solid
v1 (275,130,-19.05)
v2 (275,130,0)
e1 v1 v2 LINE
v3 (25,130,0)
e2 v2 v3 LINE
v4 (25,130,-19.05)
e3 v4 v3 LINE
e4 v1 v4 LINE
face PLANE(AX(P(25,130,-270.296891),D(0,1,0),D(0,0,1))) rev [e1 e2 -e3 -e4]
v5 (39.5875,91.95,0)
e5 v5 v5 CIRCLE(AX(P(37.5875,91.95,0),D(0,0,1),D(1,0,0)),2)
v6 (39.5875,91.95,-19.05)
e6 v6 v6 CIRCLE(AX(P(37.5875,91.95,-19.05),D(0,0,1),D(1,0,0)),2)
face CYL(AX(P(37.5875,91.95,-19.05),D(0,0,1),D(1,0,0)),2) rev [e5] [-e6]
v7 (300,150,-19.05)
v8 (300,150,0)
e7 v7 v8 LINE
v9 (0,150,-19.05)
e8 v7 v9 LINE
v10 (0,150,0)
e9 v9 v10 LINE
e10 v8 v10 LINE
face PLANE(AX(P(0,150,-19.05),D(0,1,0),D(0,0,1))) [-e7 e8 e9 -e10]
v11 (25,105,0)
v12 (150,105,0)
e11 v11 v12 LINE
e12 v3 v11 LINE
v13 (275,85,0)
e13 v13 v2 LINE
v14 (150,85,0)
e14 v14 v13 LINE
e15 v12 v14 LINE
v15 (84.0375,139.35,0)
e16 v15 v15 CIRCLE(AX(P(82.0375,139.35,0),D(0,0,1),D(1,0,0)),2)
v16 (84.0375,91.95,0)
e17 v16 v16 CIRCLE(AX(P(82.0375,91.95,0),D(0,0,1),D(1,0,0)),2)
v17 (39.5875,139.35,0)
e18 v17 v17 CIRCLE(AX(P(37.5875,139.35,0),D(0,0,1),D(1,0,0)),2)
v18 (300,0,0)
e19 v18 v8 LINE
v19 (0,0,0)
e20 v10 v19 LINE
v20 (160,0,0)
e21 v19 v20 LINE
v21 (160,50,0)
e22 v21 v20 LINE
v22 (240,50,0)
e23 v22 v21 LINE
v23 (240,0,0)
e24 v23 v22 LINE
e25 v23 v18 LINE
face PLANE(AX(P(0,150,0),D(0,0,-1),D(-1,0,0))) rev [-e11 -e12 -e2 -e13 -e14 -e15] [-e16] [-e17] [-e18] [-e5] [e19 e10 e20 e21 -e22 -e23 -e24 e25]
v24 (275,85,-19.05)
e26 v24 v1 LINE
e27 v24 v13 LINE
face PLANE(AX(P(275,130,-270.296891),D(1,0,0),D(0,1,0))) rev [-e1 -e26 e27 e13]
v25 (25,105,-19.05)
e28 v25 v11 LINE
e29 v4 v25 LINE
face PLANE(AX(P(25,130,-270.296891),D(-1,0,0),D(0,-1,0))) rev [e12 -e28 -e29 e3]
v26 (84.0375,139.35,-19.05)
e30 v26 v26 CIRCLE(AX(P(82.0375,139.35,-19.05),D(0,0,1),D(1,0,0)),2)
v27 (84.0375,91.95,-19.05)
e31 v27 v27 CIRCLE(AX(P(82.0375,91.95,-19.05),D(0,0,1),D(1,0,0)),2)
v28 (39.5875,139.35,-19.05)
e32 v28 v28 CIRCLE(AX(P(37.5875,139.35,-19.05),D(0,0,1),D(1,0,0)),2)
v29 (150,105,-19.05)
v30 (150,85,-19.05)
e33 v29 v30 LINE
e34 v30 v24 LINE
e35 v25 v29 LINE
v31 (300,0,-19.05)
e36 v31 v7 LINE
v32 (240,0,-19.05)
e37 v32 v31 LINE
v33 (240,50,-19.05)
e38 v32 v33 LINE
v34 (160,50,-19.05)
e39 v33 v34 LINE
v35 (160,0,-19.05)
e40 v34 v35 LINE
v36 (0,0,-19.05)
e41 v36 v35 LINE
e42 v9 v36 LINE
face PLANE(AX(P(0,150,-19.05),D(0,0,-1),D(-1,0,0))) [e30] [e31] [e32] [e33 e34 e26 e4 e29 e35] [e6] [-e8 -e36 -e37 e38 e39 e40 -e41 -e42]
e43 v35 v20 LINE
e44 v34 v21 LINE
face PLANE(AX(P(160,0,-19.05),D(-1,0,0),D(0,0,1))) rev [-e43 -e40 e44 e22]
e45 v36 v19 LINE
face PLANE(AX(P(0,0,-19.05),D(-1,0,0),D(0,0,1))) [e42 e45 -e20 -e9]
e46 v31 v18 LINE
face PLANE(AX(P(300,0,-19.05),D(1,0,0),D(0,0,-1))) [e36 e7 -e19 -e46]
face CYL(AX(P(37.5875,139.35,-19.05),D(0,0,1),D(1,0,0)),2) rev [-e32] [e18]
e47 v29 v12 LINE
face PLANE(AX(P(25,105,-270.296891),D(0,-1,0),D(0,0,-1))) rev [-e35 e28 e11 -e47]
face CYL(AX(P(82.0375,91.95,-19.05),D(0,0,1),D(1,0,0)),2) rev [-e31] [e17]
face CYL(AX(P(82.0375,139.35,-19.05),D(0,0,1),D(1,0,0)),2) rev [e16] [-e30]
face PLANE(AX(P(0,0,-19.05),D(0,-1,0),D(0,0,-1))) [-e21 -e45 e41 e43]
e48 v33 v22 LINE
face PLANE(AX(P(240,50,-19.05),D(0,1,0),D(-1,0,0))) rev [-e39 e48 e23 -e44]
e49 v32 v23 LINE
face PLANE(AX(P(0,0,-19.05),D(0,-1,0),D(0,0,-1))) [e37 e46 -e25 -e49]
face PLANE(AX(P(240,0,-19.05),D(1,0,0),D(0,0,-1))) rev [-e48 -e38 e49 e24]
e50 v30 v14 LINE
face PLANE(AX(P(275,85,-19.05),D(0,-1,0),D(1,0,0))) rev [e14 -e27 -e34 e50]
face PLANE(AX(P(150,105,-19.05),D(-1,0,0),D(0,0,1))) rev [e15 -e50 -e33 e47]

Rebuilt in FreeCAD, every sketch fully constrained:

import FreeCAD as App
import Part
import Sketcher
Q = App.Units.Quantity

doc = App.newDocument("Part")
params = doc.addObject("Spreadsheet::Sheet", "Params")
for row, (alias, value) in enumerate([
    ("sketch1_width", "300 mm"),
    ("sketch1_height", "150 mm"),
    ("pad1_length", "19.05 mm"),
    ("sketch2_width", "250 mm"),
    ("sketch2_height", "25 mm"),
    ("pocket1_length", "39.961179 mm"),
    ("sketch3_width", "125 mm"),
    ("sketch3_height", "20 mm"),
    ("sketch4_width", "80 mm"),
    ("sketch4_height", "50 mm"),
    ("sketch5_diameter", "4 mm"),
], start=1):
    params.set(f"A{row}", alias)
    params.set(f"B{row}", "=" + value)
    params.setAlias(f"B{row}", alias)

body = doc.addObject("PartDesign::Body", "Body")

# Sketch on XY plane
sketch1 = body.newObject("Sketcher::SketchObject", "Sketch")
sketch1.AttachmentSupport = (doc.getObject("XY_Plane"), [""])
sketch1.MapMode = "FlatFace"
sketch1.addGeometry(Part.LineSegment(App.Vector(0, 150, 0), App.Vector(0, 0, 0)), False)
sketch1.addGeometry(Part.LineSegment(App.Vector(0, 0, 0), App.Vector(300, 0, 0)), False)
sketch1.addGeometry(Part.LineSegment(App.Vector(300, 0, 0), App.Vector(300, 150, 0)), False)
sketch1.addGeometry(Part.LineSegment(App.Vector(300, 150, 0), App.Vector(0, 150, 0)), False)
sketch1.addConstraint(Sketcher.Constraint("Coincident", 0, 2, 1, 1))
sketch1.addConstraint(Sketcher.Constraint("Coincident", 1, 2, 2, 1))
sketch1.addConstraint(Sketcher.Constraint("Coincident", 2, 2, 3, 1))
sketch1.addConstraint(Sketcher.Constraint("Coincident", 3, 2, 0, 1))
sketch1.addConstraint(Sketcher.Constraint("Vertical", 0))
sketch1.addConstraint(Sketcher.Constraint("Horizontal", 1))
sketch1.addConstraint(Sketcher.Constraint("Vertical", 2))
sketch1.addConstraint(Sketcher.Constraint("Horizontal", 3))
sketch1.addConstraint(Sketcher.Constraint("Coincident", 0, 2, -1, 1))
sketch1.addConstraint(Sketcher.Constraint("DistanceX", 1, 1, 1, 2, Q("300 mm")))
sketch1.addConstraint(Sketcher.Constraint("DistanceY", 0, 2, 0, 1, Q("150 mm")))
sketch1.setExpression("Constraints[9]", "Params.sketch1_width")
sketch1.setExpression("Constraints[10]", "Params.sketch1_height")
pad1 = body.newObject("PartDesign::Pad", "Pad")
pad1.Profile = sketch1
pad1.setExpression("Length", "Params.pad1_length")
pad1.Reversed = True

# Sketch on XY plane
sketch2 = body.newObject("Sketcher::SketchObject", "Sketch001")
sketch2.AttachmentSupport = (doc.getObject("XY_Plane"), [""])
sketch2.MapMode = "FlatFace"
sketch2.addGeometry(Part.LineSegment(App.Vector(25, 130, 0), App.Vector(25, 105, 0)), False)
sketch2.addGeometry(Part.LineSegment(App.Vector(25, 105, 0), App.Vector(275, 105, 0)), False)
sketch2.addGeometry(Part.LineSegment(App.Vector(275, 105, 0), App.Vector(275, 130, 0)), False)
sketch2.addGeometry(Part.LineSegment(App.Vector(275, 130, 0), App.Vector(25, 130, 0)), False)
sketch2.addConstraint(Sketcher.Constraint("Coincident", 0, 2, 1, 1))
sketch2.addConstraint(Sketcher.Constraint("Coincident", 1, 2, 2, 1))
sketch2.addConstraint(Sketcher.Constraint("Coincident", 2, 2, 3, 1))
sketch2.addConstraint(Sketcher.Constraint("Coincident", 3, 2, 0, 1))
sketch2.addConstraint(Sketcher.Constraint("Vertical", 0))
sketch2.addConstraint(Sketcher.Constraint("Horizontal", 1))
sketch2.addConstraint(Sketcher.Constraint("Vertical", 2))
sketch2.addConstraint(Sketcher.Constraint("Horizontal", 3))
sketch2.addConstraint(Sketcher.Constraint("DistanceX", 1, 1, 1, 2, Q("250 mm")))
sketch2.addConstraint(Sketcher.Constraint("DistanceY", 0, 2, 0, 1, Q("25 mm")))
sketch2.addConstraint(Sketcher.Constraint("DistanceX", -1, 1, 0, 2, Q("25 mm")))
sketch2.addConstraint(Sketcher.Constraint("DistanceY", -1, 1, 0, 2, Q("105 mm")))
sketch2.setExpression("Constraints[8]", "Params.sketch2_width")
sketch2.setExpression("Constraints[9]", "Params.sketch2_height")
pocket1 = body.newObject("PartDesign::Pocket", "Pocket")
pocket1.Profile = sketch2
pocket1.setExpression("Length", "Params.pocket1_length")

# Sketch on XY plane
sketch3 = body.newObject("Sketcher::SketchObject", "Sketch002")
sketch3.AttachmentSupport = (doc.getObject("XY_Plane"), [""])
sketch3.MapMode = "FlatFace"
sketch3.addGeometry(Part.LineSegment(App.Vector(150, 105, 0), App.Vector(150, 85, 0)), False)
sketch3.addGeometry(Part.LineSegment(App.Vector(150, 85, 0), App.Vector(275, 85, 0)), False)
sketch3.addGeometry(Part.LineSegment(App.Vector(275, 85, 0), App.Vector(275, 105, 0)), False)
sketch3.addGeometry(Part.LineSegment(App.Vector(275, 105, 0), App.Vector(150, 105, 0)), False)
sketch3.addConstraint(Sketcher.Constraint("Coincident", 0, 2, 1, 1))
sketch3.addConstraint(Sketcher.Constraint("Coincident", 1, 2, 2, 1))
sketch3.addConstraint(Sketcher.Constraint("Coincident", 2, 2, 3, 1))
sketch3.addConstraint(Sketcher.Constraint("Coincident", 3, 2, 0, 1))
sketch3.addConstraint(Sketcher.Constraint("Vertical", 0))
sketch3.addConstraint(Sketcher.Constraint("Horizontal", 1))
sketch3.addConstraint(Sketcher.Constraint("Vertical", 2))
sketch3.addConstraint(Sketcher.Constraint("Horizontal", 3))
sketch3.addConstraint(Sketcher.Constraint("DistanceX", 1, 1, 1, 2, Q("125 mm")))
sketch3.addConstraint(Sketcher.Constraint("DistanceY", 0, 2, 0, 1, Q("20 mm")))
sketch3.addConstraint(Sketcher.Constraint("DistanceX", -1, 1, 0, 2, Q("150 mm")))
sketch3.addConstraint(Sketcher.Constraint("DistanceY", -1, 1, 0, 2, Q("85 mm")))
sketch3.setExpression("Constraints[8]", "Params.sketch3_width")
sketch3.setExpression("Constraints[9]", "Params.sketch3_height")
pocket2 = body.newObject("PartDesign::Pocket", "Pocket001")
pocket2.Profile = sketch3
pocket2.Type = "ThroughAll"

# Sketch on XY plane
sketch4 = body.newObject("Sketcher::SketchObject", "Sketch003")
sketch4.AttachmentSupport = (doc.getObject("XY_Plane"), [""])
sketch4.MapMode = "FlatFace"
sketch4.addGeometry(Part.LineSegment(App.Vector(160, 50, 0), App.Vector(160, 0, 0)), False)
sketch4.addGeometry(Part.LineSegment(App.Vector(160, 0, 0), App.Vector(240, 0, 0)), False)
sketch4.addGeometry(Part.LineSegment(App.Vector(240, 0, 0), App.Vector(240, 50, 0)), False)
sketch4.addGeometry(Part.LineSegment(App.Vector(240, 50, 0), App.Vector(160, 50, 0)), False)
sketch4.addConstraint(Sketcher.Constraint("Coincident", 0, 2, 1, 1))
sketch4.addConstraint(Sketcher.Constraint("Coincident", 1, 2, 2, 1))
sketch4.addConstraint(Sketcher.Constraint("Coincident", 2, 2, 3, 1))
sketch4.addConstraint(Sketcher.Constraint("Coincident", 3, 2, 0, 1))
sketch4.addConstraint(Sketcher.Constraint("Vertical", 0))
sketch4.addConstraint(Sketcher.Constraint("Horizontal", 1))
sketch4.addConstraint(Sketcher.Constraint("Vertical", 2))
sketch4.addConstraint(Sketcher.Constraint("Horizontal", 3))
sketch4.addConstraint(Sketcher.Constraint("PointOnObject", 0, 2, -1))
sketch4.addConstraint(Sketcher.Constraint("DistanceX", 1, 1, 1, 2, Q("80 mm")))
sketch4.addConstraint(Sketcher.Constraint("DistanceY", 0, 2, 0, 1, Q("50 mm")))
sketch4.addConstraint(Sketcher.Constraint("DistanceX", -1, 1, 0, 2, Q("160 mm")))
sketch4.setExpression("Constraints[9]", "Params.sketch4_width")
sketch4.setExpression("Constraints[10]", "Params.sketch4_height")
pocket3 = body.newObject("PartDesign::Pocket", "Pocket002")
pocket3.Profile = sketch4
pocket3.Type = "ThroughAll"

# Sketch on XY plane
sketch5 = body.newObject("Sketcher::SketchObject", "Sketch004")
sketch5.AttachmentSupport = (doc.getObject("XY_Plane"), [""])
sketch5.MapMode = "FlatFace"
sketch5.addGeometry(Part.Circle(App.Vector(37.5875, 139.35, 0), App.Vector(0, 0, 1), 2), False)
sketch5.addGeometry(Part.Circle(App.Vector(82.0375, 139.35, 0), App.Vector(0, 0, 1), 2), False)
sketch5.addGeometry(Part.Circle(App.Vector(37.5875, 91.95, 0), App.Vector(0, 0, 1), 2), False)
sketch5.addGeometry(Part.Circle(App.Vector(82.0375, 91.95, 0), App.Vector(0, 0, 1), 2), False)
sketch5.addConstraint(Sketcher.Constraint("Equal", 0, 1))
sketch5.addConstraint(Sketcher.Constraint("Equal", 1, 2))
sketch5.addConstraint(Sketcher.Constraint("Equal", 2, 3))
sketch5.addConstraint(Sketcher.Constraint("Horizontal", 0, 3, 1, 3))
sketch5.addConstraint(Sketcher.Constraint("Horizontal", 2, 3, 3, 3))
sketch5.addConstraint(Sketcher.Constraint("Vertical", 0, 3, 2, 3))
sketch5.addConstraint(Sketcher.Constraint("Vertical", 1, 3, 3, 3))
sketch5.addConstraint(Sketcher.Constraint("Diameter", 0, Q("4 mm")))
sketch5.addConstraint(Sketcher.Constraint("DistanceY", 2, 3, 0, 3, Q("47.4 mm")))
sketch5.addConstraint(Sketcher.Constraint("DistanceY", -1, 1, 0, 3, Q("139.35 mm")))
sketch5.addConstraint(Sketcher.Constraint("DistanceX", 0, 3, 1, 3, Q("44.45 mm")))
sketch5.addConstraint(Sketcher.Constraint("DistanceX", -1, 1, 0, 3, Q("37.5875 mm")))
sketch5.setExpression("Constraints[7]", "Params.sketch5_diameter")
pocket4 = body.newObject("PartDesign::Pocket", "Pocket003")
pocket4.Profile = sketch5
pocket4.Type = "ThroughAll"

doc.recompute()
